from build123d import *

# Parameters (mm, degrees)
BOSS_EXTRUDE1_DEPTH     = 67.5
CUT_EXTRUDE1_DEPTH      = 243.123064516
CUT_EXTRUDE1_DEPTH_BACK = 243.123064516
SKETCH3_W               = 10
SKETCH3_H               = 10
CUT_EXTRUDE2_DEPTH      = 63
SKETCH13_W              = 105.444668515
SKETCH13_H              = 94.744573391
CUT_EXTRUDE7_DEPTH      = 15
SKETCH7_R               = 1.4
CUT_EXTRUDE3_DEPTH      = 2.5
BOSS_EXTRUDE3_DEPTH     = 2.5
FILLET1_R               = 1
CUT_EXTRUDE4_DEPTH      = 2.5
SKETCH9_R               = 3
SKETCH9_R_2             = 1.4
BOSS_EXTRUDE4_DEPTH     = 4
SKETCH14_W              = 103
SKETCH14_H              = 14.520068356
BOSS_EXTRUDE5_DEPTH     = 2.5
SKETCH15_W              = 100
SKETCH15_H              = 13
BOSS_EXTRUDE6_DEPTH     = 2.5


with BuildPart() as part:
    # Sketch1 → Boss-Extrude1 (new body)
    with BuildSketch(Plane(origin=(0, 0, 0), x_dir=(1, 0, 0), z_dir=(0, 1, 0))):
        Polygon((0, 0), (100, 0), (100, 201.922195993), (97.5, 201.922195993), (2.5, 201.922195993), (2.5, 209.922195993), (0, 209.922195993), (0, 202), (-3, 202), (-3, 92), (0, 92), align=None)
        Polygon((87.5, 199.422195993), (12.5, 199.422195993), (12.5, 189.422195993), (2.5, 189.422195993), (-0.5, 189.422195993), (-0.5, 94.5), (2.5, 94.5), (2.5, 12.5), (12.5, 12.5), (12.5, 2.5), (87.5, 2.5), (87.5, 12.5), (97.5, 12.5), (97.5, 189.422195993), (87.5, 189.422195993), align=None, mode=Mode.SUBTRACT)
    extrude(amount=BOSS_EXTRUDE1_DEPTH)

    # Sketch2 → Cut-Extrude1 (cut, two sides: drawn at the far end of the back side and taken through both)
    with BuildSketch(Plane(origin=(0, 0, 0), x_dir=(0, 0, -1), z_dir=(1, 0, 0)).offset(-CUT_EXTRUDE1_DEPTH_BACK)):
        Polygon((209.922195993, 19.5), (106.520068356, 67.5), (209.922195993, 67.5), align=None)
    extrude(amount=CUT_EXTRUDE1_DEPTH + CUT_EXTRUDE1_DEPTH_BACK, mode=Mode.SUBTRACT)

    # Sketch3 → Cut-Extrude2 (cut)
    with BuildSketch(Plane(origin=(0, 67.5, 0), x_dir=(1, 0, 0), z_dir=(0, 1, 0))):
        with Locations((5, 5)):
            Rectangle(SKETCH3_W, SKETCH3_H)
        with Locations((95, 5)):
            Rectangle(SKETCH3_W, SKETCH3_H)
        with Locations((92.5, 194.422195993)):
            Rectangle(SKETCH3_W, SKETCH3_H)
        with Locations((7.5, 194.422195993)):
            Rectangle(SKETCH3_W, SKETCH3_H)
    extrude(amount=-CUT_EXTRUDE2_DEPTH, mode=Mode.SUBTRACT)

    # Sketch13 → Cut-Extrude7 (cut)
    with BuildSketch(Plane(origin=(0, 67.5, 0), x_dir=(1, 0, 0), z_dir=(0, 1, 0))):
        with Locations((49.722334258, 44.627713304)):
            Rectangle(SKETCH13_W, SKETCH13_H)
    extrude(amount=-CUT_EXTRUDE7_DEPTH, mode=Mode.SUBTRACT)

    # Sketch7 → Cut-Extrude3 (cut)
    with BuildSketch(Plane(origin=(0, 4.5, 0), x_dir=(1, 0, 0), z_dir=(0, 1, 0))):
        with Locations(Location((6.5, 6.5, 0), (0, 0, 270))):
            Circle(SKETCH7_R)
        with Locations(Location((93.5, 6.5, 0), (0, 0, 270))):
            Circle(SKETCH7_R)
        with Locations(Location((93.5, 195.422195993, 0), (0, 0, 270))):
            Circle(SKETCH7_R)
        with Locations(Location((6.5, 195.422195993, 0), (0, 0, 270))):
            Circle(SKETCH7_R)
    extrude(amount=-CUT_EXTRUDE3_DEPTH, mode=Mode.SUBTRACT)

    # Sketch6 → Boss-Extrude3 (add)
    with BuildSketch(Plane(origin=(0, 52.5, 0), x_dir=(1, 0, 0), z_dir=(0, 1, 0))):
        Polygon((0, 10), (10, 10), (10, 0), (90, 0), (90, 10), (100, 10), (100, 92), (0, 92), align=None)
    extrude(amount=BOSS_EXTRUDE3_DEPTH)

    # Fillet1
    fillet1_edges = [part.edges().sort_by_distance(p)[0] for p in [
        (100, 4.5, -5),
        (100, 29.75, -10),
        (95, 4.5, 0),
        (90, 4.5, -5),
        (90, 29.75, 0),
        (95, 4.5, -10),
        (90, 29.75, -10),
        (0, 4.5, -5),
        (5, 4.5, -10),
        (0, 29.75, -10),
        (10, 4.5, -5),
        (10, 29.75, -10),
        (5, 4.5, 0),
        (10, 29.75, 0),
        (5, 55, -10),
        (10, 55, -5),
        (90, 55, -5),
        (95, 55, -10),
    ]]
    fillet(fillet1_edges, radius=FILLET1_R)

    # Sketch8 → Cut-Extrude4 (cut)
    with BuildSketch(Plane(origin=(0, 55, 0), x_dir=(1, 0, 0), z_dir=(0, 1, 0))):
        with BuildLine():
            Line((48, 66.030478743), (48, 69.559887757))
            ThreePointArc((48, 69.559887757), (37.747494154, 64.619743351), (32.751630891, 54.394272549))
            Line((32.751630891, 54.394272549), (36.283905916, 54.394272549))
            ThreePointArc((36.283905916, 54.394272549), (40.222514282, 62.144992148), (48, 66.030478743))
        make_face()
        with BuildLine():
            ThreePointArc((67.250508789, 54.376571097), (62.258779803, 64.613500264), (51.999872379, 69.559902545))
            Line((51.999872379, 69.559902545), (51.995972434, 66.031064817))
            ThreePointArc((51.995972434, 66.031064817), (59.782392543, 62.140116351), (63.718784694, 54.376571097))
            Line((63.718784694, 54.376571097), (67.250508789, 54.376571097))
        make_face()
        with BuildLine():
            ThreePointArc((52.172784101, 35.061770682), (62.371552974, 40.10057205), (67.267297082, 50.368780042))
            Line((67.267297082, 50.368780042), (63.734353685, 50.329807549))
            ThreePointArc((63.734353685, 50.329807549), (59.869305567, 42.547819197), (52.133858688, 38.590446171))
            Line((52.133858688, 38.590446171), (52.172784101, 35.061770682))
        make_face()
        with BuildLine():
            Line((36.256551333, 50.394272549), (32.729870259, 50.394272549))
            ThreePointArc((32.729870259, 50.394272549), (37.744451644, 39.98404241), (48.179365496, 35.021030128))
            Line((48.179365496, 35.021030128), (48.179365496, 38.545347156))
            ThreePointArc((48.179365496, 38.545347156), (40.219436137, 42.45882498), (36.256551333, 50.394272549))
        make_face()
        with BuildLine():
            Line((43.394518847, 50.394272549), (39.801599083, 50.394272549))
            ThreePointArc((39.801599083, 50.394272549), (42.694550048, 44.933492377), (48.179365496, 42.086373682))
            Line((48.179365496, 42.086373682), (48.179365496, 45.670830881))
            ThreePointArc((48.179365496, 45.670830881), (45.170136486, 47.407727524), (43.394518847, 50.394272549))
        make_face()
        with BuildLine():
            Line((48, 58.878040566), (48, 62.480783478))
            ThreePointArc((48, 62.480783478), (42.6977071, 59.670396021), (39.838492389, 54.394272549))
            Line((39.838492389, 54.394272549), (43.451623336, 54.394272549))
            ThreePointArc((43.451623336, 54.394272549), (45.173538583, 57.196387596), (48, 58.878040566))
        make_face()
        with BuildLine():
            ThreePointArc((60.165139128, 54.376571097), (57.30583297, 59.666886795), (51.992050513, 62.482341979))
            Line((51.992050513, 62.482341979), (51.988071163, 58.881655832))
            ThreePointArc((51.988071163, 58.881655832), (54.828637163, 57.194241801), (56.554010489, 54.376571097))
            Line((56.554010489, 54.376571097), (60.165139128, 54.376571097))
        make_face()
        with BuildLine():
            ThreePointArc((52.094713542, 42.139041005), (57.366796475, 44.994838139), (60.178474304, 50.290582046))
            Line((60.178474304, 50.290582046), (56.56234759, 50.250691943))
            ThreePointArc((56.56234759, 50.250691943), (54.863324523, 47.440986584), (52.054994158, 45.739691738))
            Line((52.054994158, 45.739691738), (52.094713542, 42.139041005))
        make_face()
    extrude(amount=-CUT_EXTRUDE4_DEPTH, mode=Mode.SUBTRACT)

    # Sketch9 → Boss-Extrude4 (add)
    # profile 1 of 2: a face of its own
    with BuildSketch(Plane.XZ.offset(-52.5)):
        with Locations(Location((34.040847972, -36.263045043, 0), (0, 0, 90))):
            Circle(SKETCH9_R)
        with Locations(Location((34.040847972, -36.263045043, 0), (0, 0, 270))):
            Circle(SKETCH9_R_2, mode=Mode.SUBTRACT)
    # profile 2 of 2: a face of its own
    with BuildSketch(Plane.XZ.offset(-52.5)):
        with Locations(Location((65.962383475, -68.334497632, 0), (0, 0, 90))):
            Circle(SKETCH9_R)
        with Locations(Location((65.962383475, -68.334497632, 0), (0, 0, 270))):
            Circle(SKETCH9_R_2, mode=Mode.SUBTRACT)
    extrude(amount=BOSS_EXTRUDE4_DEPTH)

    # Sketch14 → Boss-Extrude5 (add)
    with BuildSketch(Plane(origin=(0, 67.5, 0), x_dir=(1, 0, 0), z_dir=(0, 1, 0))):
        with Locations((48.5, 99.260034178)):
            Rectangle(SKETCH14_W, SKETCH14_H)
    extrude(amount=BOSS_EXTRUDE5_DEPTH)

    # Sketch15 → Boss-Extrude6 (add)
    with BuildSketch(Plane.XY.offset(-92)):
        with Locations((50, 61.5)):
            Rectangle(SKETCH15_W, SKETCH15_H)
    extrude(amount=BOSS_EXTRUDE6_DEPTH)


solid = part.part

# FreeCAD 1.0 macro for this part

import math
import FreeCAD as App
import Part
import Sketcher


def edges_at(feature, points):
    """Names of the edges that pass closest to the given points."""
    edges = feature.Shape.Edges
    near = lambda p: min(range(len(edges)), key=lambda i: edges[i].distToShape(Part.Vertex(*p))[0])
    return sorted({f"Edge{near(p) + 1}" for p in points})


def add_polygon(sketch, points):
    """Adds a closed chain of lines whose ends are joined by coincident constraints."""
    first, n = sketch.GeometryCount, len(points)
    for a, b in zip(points, points[1:] + points[:1]):
        sketch.addGeometry(Part.LineSegment(App.Vector(*a, 0), App.Vector(*b, 0)), False)
    for i in range(n):
        sketch.addConstraint(Sketcher.Constraint("Coincident", first + i, 2, first + (i + 1) % n, 1))

doc = App.newDocument("Part")
params = doc.addObject("Spreadsheet::Sheet", "Params")
for row, (alias, value) in enumerate([
    ("sketch1_width", "100 mm"),
    ("sketch1_width2", "3 mm"),
    ("sketch1_width3", "75 mm"),
    ("sketch1_width4", "10 mm"),
    ("sketch1_height", "8 mm"),
    ("pad1_length", "67.5 mm"),
    ("sketch2_width", "48 mm"),
    ("sketch2_length", "114 mm"),
    ("sketch3_width", "10 mm"),
    ("pocket2_length", "63 mm"),
    ("pocket3_length", "15 mm"),
    ("sketch5_diameter", "2.8 mm"),
    ("pocket4_length", "2.5 mm"),
    ("sketch6_width", "10 mm"),
    ("sketch6_width2", "80 mm"),
    ("sketch6_height", "82 mm"),
    ("pad2_length", "2.5 mm"),
    ("fillet_radius", "1 mm"),
    ("pocket5_length", "2.5 mm"),
    ("sketch8_diameter", "6 mm"),
    ("sketch8_diameter2", "2.8 mm"),
    ("pad3_length", "4 mm"),
    ("sketch9_width", "103 mm"),
    ("pad4_length", "2.5 mm"),
    ("sketch10_width", "100 mm"),
    ("sketch10_height", "13 mm"),
    ("pad5_length", "2.5 mm"),
], start=1):
    params.set(f"A{row}", alias)
    params.set(f"B{row}", "=" + value)
    params.setAlias(f"B{row}", alias)

body = doc.addObject("PartDesign::Body", "Body")

# Sketch on XZ plane
sketch1 = body.newObject("Sketcher::SketchObject", "Sketch")
sketch1.AttachmentSupport = (doc.getObject("XZ_Plane"), [""])
sketch1.MapMode = "FlatFace"
add_polygon(sketch1, [(0, 0), (100, 0), (100, -201.9), (2.5, -201.9), (2.5, -209.9), (0, -209.9), (0, -202), (-3, -202), (-3, -92), (0, -92)])  # lines 0-9
add_polygon(sketch1, [(12.5, -199.4), (87.5, -199.4), (87.5, -189.4), (97.5, -189.4), (97.5, -12.5), (87.5, -12.5), (87.5, -2.5), (12.5, -2.5), (12.5, -12.5), (2.5, -12.5), (2.5, -94.5), (-0.5, -94.5), (-0.5, -189.4), (12.5, -189.4)])  # lines 10-23
sketch1.addConstraint(Sketcher.Constraint("Horizontal", 0))
sketch1.addConstraint(Sketcher.Constraint("Vertical", 1))
sketch1.addConstraint(Sketcher.Constraint("Horizontal", 2))
sketch1.addConstraint(Sketcher.Constraint("Vertical", 3))
sketch1.addConstraint(Sketcher.Constraint("Horizontal", 4))
sketch1.addConstraint(Sketcher.Constraint("Vertical", 5))
sketch1.addConstraint(Sketcher.Constraint("Horizontal", 6))
sketch1.addConstraint(Sketcher.Constraint("Vertical", 7))
sketch1.addConstraint(Sketcher.Constraint("Horizontal", 8))
sketch1.addConstraint(Sketcher.Constraint("Vertical", 9))
sketch1.addConstraint(Sketcher.Constraint("Horizontal", 10))
sketch1.addConstraint(Sketcher.Constraint("Vertical", 11))
sketch1.addConstraint(Sketcher.Constraint("Horizontal", 12))
sketch1.addConstraint(Sketcher.Constraint("Vertical", 13))
sketch1.addConstraint(Sketcher.Constraint("Horizontal", 14))
sketch1.addConstraint(Sketcher.Constraint("Vertical", 15))
sketch1.addConstraint(Sketcher.Constraint("Horizontal", 16))
sketch1.addConstraint(Sketcher.Constraint("Vertical", 17))
sketch1.addConstraint(Sketcher.Constraint("Horizontal", 18))
sketch1.addConstraint(Sketcher.Constraint("Vertical", 19))
sketch1.addConstraint(Sketcher.Constraint("Horizontal", 20))
sketch1.addConstraint(Sketcher.Constraint("Vertical", 21))
sketch1.addConstraint(Sketcher.Constraint("Horizontal", 22))
sketch1.addConstraint(Sketcher.Constraint("Vertical", 23))
sketch1.addConstraint(Sketcher.Constraint("Coincident", 9, 2, -1, 1))
sketch1.addConstraint(Sketcher.Constraint("PointOnObject", 4, 2, -2))
sketch1.addConstraint(Sketcher.Constraint("Horizontal", 14, 2, 17, 2))
sketch1.addConstraint(Sketcher.Constraint("Horizontal", 12, 2, 21, 2))
sketch1.addConstraint(Sketcher.Constraint("Vertical", 11, 2, 14, 2))
sketch1.addConstraint(Sketcher.Constraint("Vertical", 3, 2, 18, 2))
sketch1.addConstraint(Sketcher.Constraint("Vertical", 17, 2, 22, 2))
sketch1.addConstraint(Sketcher.Constraint("Equal", 14, 18))
sketch1.addConstraint(Sketcher.Constraint("Equal", 8, 20))
sketch1.addConstraint(Sketcher.Constraint("Equal", 18, 11))
sketch1.addConstraint(Sketcher.Constraint("Equal", 11, 15))
sketch1.addConstraint(Sketcher.Constraint("DistanceX", 0, 1, 0, 2, 100.0))
sketch1.addConstraint(Sketcher.Constraint("DistanceX", 6, 2, 6, 1, 3.0))
sketch1.addConstraint(Sketcher.Constraint("DistanceX", 10, 1, 10, 2, 75.0))
sketch1.addConstraint(Sketcher.Constraint("DistanceX", 12, 1, 12, 2, 10.0))
sketch1.addConstraint(Sketcher.Constraint("DistanceY", 3, 2, 3, 1, 8.0))
sketch1.addConstraint(Sketcher.Constraint("DistanceY", 7, 1, 7, 2, 110.0))
sketch1.addConstraint(Sketcher.Constraint("DistanceY", 9, 1, 9, 2, 92.0))
sketch1.addConstraint(Sketcher.Constraint("DistanceY", 19, 2, 19, 1, 82.0))
sketch1.addConstraint(Sketcher.Constraint("DistanceX", 2, 2, 2, 1, 97.5))
sketch1.addConstraint(Sketcher.Constraint("DistanceY", 13, 2, -1, 1, 12.5))
sketch1.addConstraint(Sketcher.Constraint("DistanceY", 1, 2, 10, 2, 2.5))
sketch1.addConstraint(Sketcher.Constraint("DistanceY", 1, 2, 1, 1, 201.922196))
sketch1.setExpression("Constraints[59]", "Params.sketch1_width")
sketch1.setExpression("Constraints[60]", "Params.sketch1_width2")
sketch1.setExpression("Constraints[61]", "Params.sketch1_width3")
sketch1.setExpression("Constraints[62]", "Params.sketch1_width4")
sketch1.setExpression("Constraints[63]", "Params.sketch1_height")
pad1 = body.newObject("PartDesign::Pad", "Pad")
pad1.Profile = sketch1
pad1.setExpression("Length", "Params.pad1_length")
pad1.Reversed = True

# Sketch on YZ plane
sketch2 = body.newObject("Sketcher::SketchObject", "Sketch001")
sketch2.AttachmentSupport = (doc.getObject("YZ_Plane"), [""])
sketch2.MapMode = "FlatFace"
add_polygon(sketch2, [(68, -107), (20, -210), (68, -210)])  # lines 0-2
sketch2.addConstraint(Sketcher.Constraint("Horizontal", 1))
sketch2.addConstraint(Sketcher.Constraint("Vertical", 2))
sketch2.addConstraint(Sketcher.Constraint("DistanceX", 1, 1, 1, 2, 48.0))
sketch2.addConstraint(Sketcher.Constraint("Distance", 0, 114.0))
sketch2.addConstraint(Sketcher.Constraint("DistanceX", -1, 1, 0, 2, 19.5))
sketch2.addConstraint(Sketcher.Constraint("DistanceY", 2, 2, -1, 1, 106.520068))
sketch2.setExpression("Constraints[5]", "Params.sketch2_width")
sketch2.setExpression("Constraints[6]", "Params.sketch2_length")
pocket1 = body.newObject("PartDesign::Pocket", "Pocket")
pocket1.Profile = sketch2
pocket1.Type = "ThroughAll"
pocket1.Midplane = True

# Sketch on XZ plane
sketch3 = body.newObject("Sketcher::SketchObject", "Sketch002")
sketch3.AttachmentSupport = (doc.getObject("XZ_Plane"), [""])
sketch3.MapMode = "FlatFace"
sketch3.AttachmentOffset = App.Placement(App.Vector(0, 0, -67.5), App.Rotation())
add_polygon(sketch3, [(0, -10), (0, 0), (10, 0), (10, -10)])  # lines 0-3
add_polygon(sketch3, [(90, -10), (90, 0), (100, 0), (100, -10)])  # lines 4-7
add_polygon(sketch3, [(88, -199), (88, -189), (98, -189), (98, -199)])  # lines 8-11
add_polygon(sketch3, [(2, -199), (2, -189), (12, -189), (12, -199)])  # lines 12-15
sketch3.addConstraint(Sketcher.Constraint("Vertical", 0))
sketch3.addConstraint(Sketcher.Constraint("Horizontal", 1))
sketch3.addConstraint(Sketcher.Constraint("Vertical", 2))
sketch3.addConstraint(Sketcher.Constraint("Horizontal", 3))
sketch3.addConstraint(Sketcher.Constraint("Vertical", 4))
sketch3.addConstraint(Sketcher.Constraint("Horizontal", 5))
sketch3.addConstraint(Sketcher.Constraint("Vertical", 6))
sketch3.addConstraint(Sketcher.Constraint("Horizontal", 7))
sketch3.addConstraint(Sketcher.Constraint("Vertical", 8))
sketch3.addConstraint(Sketcher.Constraint("Horizontal", 9))
sketch3.addConstraint(Sketcher.Constraint("Vertical", 10))
sketch3.addConstraint(Sketcher.Constraint("Horizontal", 11))
sketch3.addConstraint(Sketcher.Constraint("Vertical", 12))
sketch3.addConstraint(Sketcher.Constraint("Horizontal", 13))
sketch3.addConstraint(Sketcher.Constraint("Vertical", 14))
sketch3.addConstraint(Sketcher.Constraint("Horizontal", 15))
sketch3.addConstraint(Sketcher.Constraint("Coincident", 0, 2, -1, 1))
sketch3.addConstraint(Sketcher.Constraint("PointOnObject", 4, 2, -1))
sketch3.addConstraint(Sketcher.Constraint("Horizontal", 3, 2, 6, 2))
sketch3.addConstraint(Sketcher.Constraint("Horizontal", 9, 2, 12, 2))
sketch3.addConstraint(Sketcher.Constraint("Horizontal", 11, 2, 14, 2))
sketch3.addConstraint(Sketcher.Constraint("Equal", 3, 5))
sketch3.addConstraint(Sketcher.Constraint("Equal", 7, 9))
sketch3.addConstraint(Sketcher.Constraint("Equal", 11, 13))
sketch3.addConstraint(Sketcher.Constraint("Equal", 15, 0))
sketch3.addConstraint(Sketcher.Constraint("Equal", 6, 8))
sketch3.addConstraint(Sketcher.Constraint("DistanceX", 1, 1, 1, 2, 10.0))
sketch3.addConstraint(Sketcher.Constraint("DistanceX", -1, 1, 4, 2, 90.0))
sketch3.addConstraint(Sketcher.Constraint("DistanceX", 12, 2, 8, 2, 85.0))
sketch3.addConstraint(Sketcher.Constraint("DistanceX", -1, 1, 8, 2, 87.5))
sketch3.addConstraint(Sketcher.Constraint("DistanceY", 8, 2, -1, 1, 189.422196))
sketch3.setExpression("Constraints[42]", "Params.sketch3_width")
pocket2 = body.newObject("PartDesign::Pocket", "Pocket001")
pocket2.Profile = sketch3
pocket2.setExpression("Length", "Params.pocket2_length")
pocket2.Reversed = True

# Sketch on XZ plane
sketch4 = body.newObject("Sketcher::SketchObject", "Sketch003")
sketch4.AttachmentSupport = (doc.getObject("XZ_Plane"), [""])
sketch4.MapMode = "FlatFace"
sketch4.AttachmentOffset = App.Placement(App.Vector(0, 0, -67.5), App.Rotation())
add_polygon(sketch4, [(-3, -92), (-3, 3), (102, 3), (102, -92)])  # lines 0-3
sketch4.addConstraint(Sketcher.Constraint("Vertical", 0))
sketch4.addConstraint(Sketcher.Constraint("Horizontal", 1))
sketch4.addConstraint(Sketcher.Constraint("Vertical", 2))
sketch4.addConstraint(Sketcher.Constraint("Horizontal", 3))
sketch4.addConstraint(Sketcher.Constraint("DistanceX", 0, 2, -1, 1, 3.0))
sketch4.addConstraint(Sketcher.Constraint("DistanceY", 2, 2, -1, 1, 92.0))
sketch4.addConstraint(Sketcher.Constraint("DistanceX", 1, 1, 1, 2, 105.444669))
sketch4.addConstraint(Sketcher.Constraint("DistanceY", 0, 1, 0, 2, 94.744573))
pocket3 = body.newObject("PartDesign::Pocket", "Pocket002")
pocket3.Profile = sketch4
pocket3.setExpression("Length", "Params.pocket3_length")
pocket3.Reversed = True

# Sketch on XZ plane
sketch5 = body.newObject("Sketcher::SketchObject", "Sketch004")
sketch5.AttachmentSupport = (doc.getObject("XZ_Plane"), [""])
sketch5.MapMode = "FlatFace"
sketch5.AttachmentOffset = App.Placement(App.Vector(0, 0, -4.5), App.Rotation())
sketch5.addGeometry(Part.Circle(App.Vector(6.5, -6.5, 0), App.Vector(0, 0, 1), 1.4), False)
sketch5.addGeometry(Part.Circle(App.Vector(93.5, -6.5, 0), App.Vector(0, 0, 1), 1.4), False)
sketch5.addGeometry(Part.Circle(App.Vector(93.5, -195.4, 0), App.Vector(0, 0, 1), 1.4), False)
sketch5.addGeometry(Part.Circle(App.Vector(6.5, -195.4, 0), App.Vector(0, 0, 1), 1.4), False)
sketch5.addConstraint(Sketcher.Constraint("Equal", 0, 1))
sketch5.addConstraint(Sketcher.Constraint("Equal", 1, 2))
sketch5.addConstraint(Sketcher.Constraint("Equal", 2, 3))
sketch5.addConstraint(Sketcher.Constraint("Horizontal", 0, 3, 1, 3))
sketch5.addConstraint(Sketcher.Constraint("Horizontal", 2, 3, 3, 3))
sketch5.addConstraint(Sketcher.Constraint("Vertical", 1, 3, 2, 3))
sketch5.addConstraint(Sketcher.Constraint("Vertical", 0, 3, 3, 3))
sketch5.addConstraint(Sketcher.Constraint("Diameter", 0, 2.8))
sketch5.addConstraint(Sketcher.Constraint("DistanceX", 0, 3, 1, 3, 87.0))
sketch5.addConstraint(Sketcher.Constraint("DistanceX", -1, 1, 0, 3, 6.5))
sketch5.addConstraint(Sketcher.Constraint("DistanceY", 0, 3, -1, 1, 6.5))
sketch5.addConstraint(Sketcher.Constraint("DistanceY", 2, 3, -1, 1, 195.422196))
sketch5.setExpression("Constraints[7]", "Params.sketch5_diameter")
pocket4 = body.newObject("PartDesign::Pocket", "Pocket003")
pocket4.Profile = sketch5
pocket4.setExpression("Length", "Params.pocket4_length")
pocket4.Reversed = True

# Sketch on XZ plane
sketch6 = body.newObject("Sketcher::SketchObject", "Sketch005")
sketch6.AttachmentSupport = (doc.getObject("XZ_Plane"), [""])
sketch6.MapMode = "FlatFace"
sketch6.AttachmentOffset = App.Placement(App.Vector(0, 0, -52.5), App.Rotation())
add_polygon(sketch6, [(0, -10), (10, -10), (10, 0), (90, 0), (90, -10), (100, -10), (100, -92), (0, -92)])  # lines 0-7
sketch6.addConstraint(Sketcher.Constraint("Horizontal", 0))
sketch6.addConstraint(Sketcher.Constraint("Vertical", 1))
sketch6.addConstraint(Sketcher.Constraint("Horizontal", 2))
sketch6.addConstraint(Sketcher.Constraint("Vertical", 3))
sketch6.addConstraint(Sketcher.Constraint("Horizontal", 4))
sketch6.addConstraint(Sketcher.Constraint("Vertical", 5))
sketch6.addConstraint(Sketcher.Constraint("Horizontal", 6))
sketch6.addConstraint(Sketcher.Constraint("Vertical", 7))
sketch6.addConstraint(Sketcher.Constraint("PointOnObject", 1, 2, -1))
sketch6.addConstraint(Sketcher.Constraint("PointOnObject", 6, 2, -2))
sketch6.addConstraint(Sketcher.Constraint("Horizontal", 0, 2, 3, 2))
sketch6.addConstraint(Sketcher.Constraint("Equal", 0, 4))
sketch6.addConstraint(Sketcher.Constraint("Equal", 4, 1))
sketch6.addConstraint(Sketcher.Constraint("DistanceX", 0, 1, 0, 2, 10.0))
sketch6.addConstraint(Sketcher.Constraint("DistanceX", 2, 1, 2, 2, 80.0))
sketch6.addConstraint(Sketcher.Constraint("DistanceY", 5, 2, 5, 1, 82.0))
sketch6.setExpression("Constraints[21]", "Params.sketch6_width")
sketch6.setExpression("Constraints[22]", "Params.sketch6_width2")
sketch6.setExpression("Constraints[23]", "Params.sketch6_height")
pad2 = body.newObject("PartDesign::Pad", "Pad001")
pad2.Profile = sketch6
pad2.setExpression("Length", "Params.pad2_length")
pad2.Reversed = True
doc.recompute()

fillet = body.newObject("PartDesign::Fillet", "Fillet")
fillet.Base = (pad2, edges_at(pad2, [
    (100, 4.5, -5),
    (100, 29.75, -10),
    (95, 4.5, 0),
    (90, 4.5, -5),
    (90, 29.75, 0),
    (95, 4.5, -10),
    (90, 29.75, -10),
    (0, 4.5, -5),
    (5, 4.5, -10),
    (0, 29.75, -10),
    (10, 4.5, -5),
    (10, 29.75, -10),
    (5, 4.5, 0),
    (10, 29.75, 0),
    (5, 55, -10),
    (10, 55, -5),
    (90, 55, -5),
    (95, 55, -10),
]))
fillet.setExpression("Radius", "Params.fillet_radius")

# Sketch on XZ plane
sketch7 = body.newObject("Sketcher::SketchObject", "Sketch006")
sketch7.AttachmentSupport = (doc.getObject("XZ_Plane"), [""])
sketch7.MapMode = "FlatFace"
sketch7.AttachmentOffset = App.Placement(App.Vector(0, 0, -55), App.Rotation())
sketch7.addGeometry(Part.LineSegment(App.Vector(48, -66, 0), App.Vector(48, -69.6, 0)), False)
sketch7.addGeometry(Part.ArcOfCircle(Part.Circle(App.Vector(50, -52.3, 0), App.Vector(0, 0, 1), 17.4), math.radians(-173), math.radians(-97)), False)
sketch7.addGeometry(Part.LineSegment(App.Vector(32.8, -54.4, 0), App.Vector(36.3, -54.4, 0)), False)
sketch7.addGeometry(Part.ArcOfCircle(Part.Circle(App.Vector(50, -52.3, 0), App.Vector(0, 0, 1), 13.9), math.radians(-171), math.radians(-98)), False)
sketch7.addGeometry(Part.ArcOfCircle(Part.Circle(App.Vector(50, -52.3, 0), App.Vector(0, 0, 1), 17.4), math.radians(-83), math.radians(-7)), False)
sketch7.addGeometry(Part.LineSegment(App.Vector(52, -69.6, 0), App.Vector(52, -66, 0)), False)
sketch7.addGeometry(Part.ArcOfCircle(Part.Circle(App.Vector(50, -52.3, 0), App.Vector(0, 0, 1), 13.9), math.radians(-82), math.radians(-9)), False)
sketch7.addGeometry(Part.LineSegment(App.Vector(63.7, -54.4, 0), App.Vector(67.3, -54.4, 0)), False)
sketch7.addGeometry(Part.ArcOfCircle(Part.Circle(App.Vector(50, -52.3, 0), App.Vector(0, 0, 1), 17.4), math.radians(6), math.radians(83)), False)
sketch7.addGeometry(Part.LineSegment(App.Vector(67.3, -50.4, 0), App.Vector(63.7, -50.3, 0)), False)
sketch7.addGeometry(Part.ArcOfCircle(Part.Circle(App.Vector(50, -52.3, 0), App.Vector(0, 0, 1), 13.9), math.radians(8), math.radians(81)), False)
sketch7.addGeometry(Part.LineSegment(App.Vector(52.1, -38.6, 0), App.Vector(52.2, -35.1, 0)), False)
sketch7.addGeometry(Part.LineSegment(App.Vector(36.3, -50.4, 0), App.Vector(32.7, -50.4, 0)), False)
sketch7.addGeometry(Part.ArcOfCircle(Part.Circle(App.Vector(50, -52.3, 0), App.Vector(0, 0, 1), 17.4), math.radians(96), math.radians(174)), False)
sketch7.addGeometry(Part.LineSegment(App.Vector(48.2, -35, 0), App.Vector(48.2, -38.5, 0)), False)
sketch7.addGeometry(Part.ArcOfCircle(Part.Circle(App.Vector(50, -52.3, 0), App.Vector(0, 0, 1), 13.9), math.radians(98), math.radians(172)), False)
sketch7.addGeometry(Part.LineSegment(App.Vector(43.4, -50.4, 0), App.Vector(39.8, -50.4, 0)), False)
sketch7.addGeometry(Part.ArcOfCircle(Part.Circle(App.Vector(50, -52.3, 0), App.Vector(0, 0, 1), 10.4), math.radians(100), math.radians(169)), False)
sketch7.addGeometry(Part.LineSegment(App.Vector(48.2, -42.1, 0), App.Vector(48.2, -45.7, 0)), False)
sketch7.addGeometry(Part.ArcOfCircle(Part.Circle(App.Vector(50, -52.3, 0), App.Vector(0, 0, 1), 6.9), math.radians(105), math.radians(164)), False)
sketch7.addGeometry(Part.LineSegment(App.Vector(48, -58.9, 0), App.Vector(48, -62.5, 0)), False)
sketch7.addGeometry(Part.ArcOfCircle(Part.Circle(App.Vector(50, -52.3, 0), App.Vector(0, 0, 1), 10.4), math.radians(-168), math.radians(-101)), False)
sketch7.addGeometry(Part.LineSegment(App.Vector(39.8, -54.4, 0), App.Vector(43.5, -54.4, 0)), False)
sketch7.addGeometry(Part.ArcOfCircle(Part.Circle(App.Vector(50, -52.3, 0), App.Vector(0, 0, 1), 6.9), math.radians(-162), math.radians(-107)), False)
sketch7.addGeometry(Part.ArcOfCircle(Part.Circle(App.Vector(50, -52.3, 0), App.Vector(0, 0, 1), 10.4), math.radians(-79), math.radians(-12)), False)
sketch7.addGeometry(Part.LineSegment(App.Vector(52, -62.5, 0), App.Vector(52, -58.9, 0)), False)
sketch7.addGeometry(Part.ArcOfCircle(Part.Circle(App.Vector(50, -52.3, 0), App.Vector(0, 0, 1), 6.9), math.radians(-73), math.radians(-18)), False)
sketch7.addGeometry(Part.LineSegment(App.Vector(56.6, -54.4, 0), App.Vector(60.2, -54.4, 0)), False)
sketch7.addGeometry(Part.ArcOfCircle(Part.Circle(App.Vector(50, -52.3, 0), App.Vector(0, 0, 1), 10.4), math.radians(11), math.radians(78)), False)
sketch7.addGeometry(Part.LineSegment(App.Vector(60.2, -50.3, 0), App.Vector(56.6, -50.3, 0)), False)
sketch7.addGeometry(Part.ArcOfCircle(Part.Circle(App.Vector(50, -52.3, 0), App.Vector(0, 0, 1), 6.9), math.radians(17), math.radians(73)), False)
sketch7.addGeometry(Part.LineSegment(App.Vector(52.1, -45.7, 0), App.Vector(52.1, -42.1, 0)), False)
sketch7.addConstraint(Sketcher.Constraint("Coincident", 0, 2, 1, 2))
sketch7.addConstraint(Sketcher.Constraint("Coincident", 1, 1, 2, 1))
sketch7.addConstraint(Sketcher.Constraint("Coincident", 2, 2, 3, 1))
sketch7.addConstraint(Sketcher.Constraint("Coincident", 3, 2, 0, 1))
sketch7.addConstraint(Sketcher.Constraint("Coincident", 4, 1, 5, 1))
sketch7.addConstraint(Sketcher.Constraint("Coincident", 5, 2, 6, 1))
sketch7.addConstraint(Sketcher.Constraint("Coincident", 6, 2, 7, 1))
sketch7.addConstraint(Sketcher.Constraint("Coincident", 7, 2, 4, 2))
sketch7.addConstraint(Sketcher.Constraint("Coincident", 8, 1, 9, 1))
sketch7.addConstraint(Sketcher.Constraint("Coincident", 9, 2, 10, 1))
sketch7.addConstraint(Sketcher.Constraint("Coincident", 10, 2, 11, 1))
sketch7.addConstraint(Sketcher.Constraint("Coincident", 11, 2, 8, 2))
sketch7.addConstraint(Sketcher.Constraint("Coincident", 12, 2, 13, 2))
sketch7.addConstraint(Sketcher.Constraint("Coincident", 13, 1, 14, 1))
sketch7.addConstraint(Sketcher.Constraint("Coincident", 14, 2, 15, 1))
sketch7.addConstraint(Sketcher.Constraint("Coincident", 15, 2, 12, 1))
sketch7.addConstraint(Sketcher.Constraint("Coincident", 16, 2, 17, 2))
sketch7.addConstraint(Sketcher.Constraint("Coincident", 17, 1, 18, 1))
sketch7.addConstraint(Sketcher.Constraint("Coincident", 18, 2, 19, 1))
sketch7.addConstraint(Sketcher.Constraint("Coincident", 19, 2, 16, 1))
sketch7.addConstraint(Sketcher.Constraint("Coincident", 20, 2, 21, 2))
sketch7.addConstraint(Sketcher.Constraint("Coincident", 21, 1, 22, 1))
sketch7.addConstraint(Sketcher.Constraint("Coincident", 22, 2, 23, 1))
sketch7.addConstraint(Sketcher.Constraint("Coincident", 23, 2, 20, 1))
sketch7.addConstraint(Sketcher.Constraint("Coincident", 24, 1, 25, 1))
sketch7.addConstraint(Sketcher.Constraint("Coincident", 25, 2, 26, 1))
sketch7.addConstraint(Sketcher.Constraint("Coincident", 26, 2, 27, 1))
sketch7.addConstraint(Sketcher.Constraint("Coincident", 27, 2, 24, 2))
sketch7.addConstraint(Sketcher.Constraint("Coincident", 28, 1, 29, 1))
sketch7.addConstraint(Sketcher.Constraint("Coincident", 29, 2, 30, 1))
sketch7.addConstraint(Sketcher.Constraint("Coincident", 30, 2, 31, 1))
sketch7.addConstraint(Sketcher.Constraint("Coincident", 31, 2, 28, 2))
sketch7.addConstraint(Sketcher.Constraint("Vertical", 0))
sketch7.addConstraint(Sketcher.Constraint("Horizontal", 2))
sketch7.addConstraint(Sketcher.Constraint("Horizontal", 7))
sketch7.addConstraint(Sketcher.Constraint("Horizontal", 12))
sketch7.addConstraint(Sketcher.Constraint("Vertical", 14))
sketch7.addConstraint(Sketcher.Constraint("Horizontal", 16))
sketch7.addConstraint(Sketcher.Constraint("Vertical", 18))
sketch7.addConstraint(Sketcher.Constraint("Vertical", 20))
sketch7.addConstraint(Sketcher.Constraint("Horizontal", 22))
sketch7.addConstraint(Sketcher.Constraint("Horizontal", 27))
sketch7.addConstraint(Sketcher.Constraint("Coincident", 3, 3, 1, 3))
sketch7.addConstraint(Sketcher.Constraint("Coincident", 4, 3, 1, 3))
sketch7.addConstraint(Sketcher.Constraint("Coincident", 6, 3, 1, 3))
sketch7.addConstraint(Sketcher.Constraint("Coincident", 8, 3, 1, 3))
sketch7.addConstraint(Sketcher.Constraint("Coincident", 10, 3, 1, 3))
sketch7.addConstraint(Sketcher.Constraint("Coincident", 13, 3, 1, 3))
sketch7.addConstraint(Sketcher.Constraint("Coincident", 15, 3, 1, 3))
sketch7.addConstraint(Sketcher.Constraint("Coincident", 17, 3, 1, 3))
sketch7.addConstraint(Sketcher.Constraint("Coincident", 19, 3, 1, 3))
sketch7.addConstraint(Sketcher.Constraint("Coincident", 21, 3, 1, 3))
sketch7.addConstraint(Sketcher.Constraint("Coincident", 23, 3, 1, 3))
sketch7.addConstraint(Sketcher.Constraint("Coincident", 24, 3, 1, 3))
sketch7.addConstraint(Sketcher.Constraint("Coincident", 26, 3, 1, 3))
sketch7.addConstraint(Sketcher.Constraint("Coincident", 28, 3, 1, 3))
sketch7.addConstraint(Sketcher.Constraint("Coincident", 30, 3, 1, 3))
sketch7.addConstraint(Sketcher.Constraint("Equal", 1, 4))
sketch7.addConstraint(Sketcher.Constraint("Equal", 3, 6))
sketch7.addConstraint(Sketcher.Constraint("Equal", 4, 8))
sketch7.addConstraint(Sketcher.Constraint("Equal", 6, 10))
sketch7.addConstraint(Sketcher.Constraint("Equal", 8, 13))
sketch7.addConstraint(Sketcher.Constraint("Equal", 10, 15))
sketch7.addConstraint(Sketcher.Constraint("Equal", 17, 21))
sketch7.addConstraint(Sketcher.Constraint("Equal", 19, 23))
sketch7.addConstraint(Sketcher.Constraint("Equal", 21, 24))
sketch7.addConstraint(Sketcher.Constraint("Equal", 23, 26))
sketch7.addConstraint(Sketcher.Constraint("Equal", 24, 28))
sketch7.addConstraint(Sketcher.Constraint("Equal", 26, 30))
sketch7.addConstraint(Sketcher.Constraint("Perpendicular", 9, 11))
sketch7.addConstraint(Sketcher.Constraint("Parallel", 5, 25))
sketch7.addConstraint(Sketcher.Constraint("Perpendicular", 11, 29))
sketch7.addConstraint(Sketcher.Constraint("Perpendicular", 29, 31))
sketch7.addConstraint(Sketcher.Constraint("Horizontal", 15, 2, 16, 2))
sketch7.addConstraint(Sketcher.Constraint("Horizontal", 2, 2, 21, 1))
sketch7.addConstraint(Sketcher.Constraint("Horizontal", 7, 2, 26, 2))
sketch7.addConstraint(Sketcher.Constraint("Vertical", 14, 2, 17, 1))
sketch7.addConstraint(Sketcher.Constraint("Vertical", 3, 2, 20, 2))
sketch7.addConstraint(Sketcher.Constraint("DistanceX", -1, 1, 1, 3, 50.0))
sketch7.addConstraint(Sketcher.Constraint("DistanceX", -1, 1, 0, 2, 48.0))
sketch7.addConstraint(Sketcher.Constraint("Radius", 1, 17.375))
sketch7.addConstraint(Sketcher.Constraint("Radius", 3, 13.875))
sketch7.addConstraint(Sketcher.Constraint("Radius", 17, 10.375))
sketch7.addConstraint(Sketcher.Constraint("Radius", 19, 6.875))
sketch7.addConstraint(Sketcher.Constraint("DistanceY", 1, 1, 12, 2, 4.0))
sketch7.addConstraint(Sketcher.Constraint("DistanceY", 29, 2, 30, 2, 4.511))
sketch7.addConstraint(Sketcher.Constraint("DistanceX", 12, 2, 12, 1, 3.526681))
sketch7.addConstraint(Sketcher.Constraint("DistanceX", 27, 1, 27, 2, 3.611129))
sketch7.addConstraint(Sketcher.Constraint("DistanceX", 5, 2, 4, 1, 0.0039))
sketch7.addConstraint(Sketcher.Constraint("DistanceY", 28, 3, 8, 1, 1.931599))
sketch7.addConstraint(Sketcher.Constraint("DistanceY", 10, 2, 14, 2, 0.045099))
sketch7.addConstraint(Sketcher.Constraint("DistanceY", 24, 1, 23, 2, 3.604301))
sketch7.addConstraint(Sketcher.Constraint("Distance", 5, 3.52884))
sketch7.addConstraint(Sketcher.Constraint("Distance", 9, 3.533158))
sketch7.addConstraint(Sketcher.Constraint("Distance", 11, 3.52889))
sketch7.addConstraint(Sketcher.Constraint("Distance", 31, 3.60087))
sketch7.addConstraint(Sketcher.Constraint("DistanceY", 1, 3, -1, 1, 52.30038))
pocket5 = body.newObject("PartDesign::Pocket", "Pocket004")
pocket5.Profile = sketch7
pocket5.setExpression("Length", "Params.pocket5_length")
pocket5.Reversed = True

# Sketch on XZ plane
sketch8 = body.newObject("Sketcher::SketchObject", "Sketch007")
sketch8.AttachmentSupport = (doc.getObject("XZ_Plane"), [""])
sketch8.MapMode = "FlatFace"
sketch8.AttachmentOffset = App.Placement(App.Vector(0, 0, -52.5), App.Rotation())
sketch8.addGeometry(Part.Circle(App.Vector(34, -36.3, 0), App.Vector(0, 0, 1), 3), False)
sketch8.addGeometry(Part.Circle(App.Vector(34, -36.3, 0), App.Vector(0, 0, 1), 1.4), False)
sketch8.addGeometry(Part.Circle(App.Vector(66, -68.3, 0), App.Vector(0, 0, 1), 3), False)
sketch8.addGeometry(Part.Circle(App.Vector(66, -68.3, 0), App.Vector(0, 0, 1), 1.4), False)
sketch8.addConstraint(Sketcher.Constraint("Coincident", 1, 3, 0, 3))
sketch8.addConstraint(Sketcher.Constraint("Coincident", 3, 3, 2, 3))
sketch8.addConstraint(Sketcher.Constraint("Equal", 0, 2))
sketch8.addConstraint(Sketcher.Constraint("Equal", 1, 3))
sketch8.addConstraint(Sketcher.Constraint("Diameter", 0, 6.0))
sketch8.addConstraint(Sketcher.Constraint("Diameter", 1, 2.8))
sketch8.addConstraint(Sketcher.Constraint("DistanceX", -1, 1, 0, 3, 34.040848))
sketch8.addConstraint(Sketcher.Constraint("DistanceY", 0, 3, -1, 1, 36.263045))
sketch8.addConstraint(Sketcher.Constraint("DistanceX", -1, 1, 2, 3, 65.962383))
sketch8.addConstraint(Sketcher.Constraint("DistanceY", 2, 3, -1, 1, 68.334498))
sketch8.setExpression("Constraints[4]", "Params.sketch8_diameter")
sketch8.setExpression("Constraints[5]", "Params.sketch8_diameter2")
pad3 = body.newObject("PartDesign::Pad", "Pad002")
pad3.Profile = sketch8
pad3.setExpression("Length", "Params.pad3_length")

# Sketch on XZ plane
sketch9 = body.newObject("Sketcher::SketchObject", "Sketch008")
sketch9.AttachmentSupport = (doc.getObject("XZ_Plane"), [""])
sketch9.MapMode = "FlatFace"
sketch9.AttachmentOffset = App.Placement(App.Vector(0, 0, -67.5), App.Rotation())
add_polygon(sketch9, [(-3, -107), (-3, -92), (100, -92), (100, -107)])  # lines 0-3
sketch9.addConstraint(Sketcher.Constraint("Vertical", 0))
sketch9.addConstraint(Sketcher.Constraint("Horizontal", 1))
sketch9.addConstraint(Sketcher.Constraint("Vertical", 2))
sketch9.addConstraint(Sketcher.Constraint("Horizontal", 3))
sketch9.addConstraint(Sketcher.Constraint("DistanceX", 1, 1, 1, 2, 103.0))
sketch9.addConstraint(Sketcher.Constraint("DistanceX", 0, 2, -1, 1, 3.0))
sketch9.addConstraint(Sketcher.Constraint("DistanceY", 0, 2, -1, 1, 92.0))
sketch9.addConstraint(Sketcher.Constraint("DistanceY", 0, 1, 0, 2, 14.520068))
sketch9.setExpression("Constraints[8]", "Params.sketch9_width")
pad4 = body.newObject("PartDesign::Pad", "Pad003")
pad4.Profile = sketch9
pad4.setExpression("Length", "Params.pad4_length")
pad4.Reversed = True

# Sketch on XY plane
sketch10 = body.newObject("Sketcher::SketchObject", "Sketch009")
sketch10.AttachmentSupport = (doc.getObject("XY_Plane"), [""])
sketch10.MapMode = "FlatFace"
sketch10.AttachmentOffset = App.Placement(App.Vector(0, 0, -92), App.Rotation())
add_polygon(sketch10, [(0, 68), (0, 55), (100, 55), (100, 68)])  # lines 0-3
sketch10.addConstraint(Sketcher.Constraint("Vertical", 0))
sketch10.addConstraint(Sketcher.Constraint("Horizontal", 1))
sketch10.addConstraint(Sketcher.Constraint("Vertical", 2))
sketch10.addConstraint(Sketcher.Constraint("Horizontal", 3))
sketch10.addConstraint(Sketcher.Constraint("PointOnObject", 0, 2, -2))
sketch10.addConstraint(Sketcher.Constraint("DistanceX", 1, 1, 1, 2, 100.0))
sketch10.addConstraint(Sketcher.Constraint("DistanceY", 0, 2, 0, 1, 13.0))
sketch10.addConstraint(Sketcher.Constraint("DistanceY", -1, 1, 0, 2, 55.0))
sketch10.setExpression("Constraints[9]", "Params.sketch10_width")
sketch10.setExpression("Constraints[10]", "Params.sketch10_height")
pad5 = body.newObject("PartDesign::Pad", "Pad004")
pad5.Profile = sketch10
pad5.setExpression("Length", "Params.pad5_length")

doc.recompute()
